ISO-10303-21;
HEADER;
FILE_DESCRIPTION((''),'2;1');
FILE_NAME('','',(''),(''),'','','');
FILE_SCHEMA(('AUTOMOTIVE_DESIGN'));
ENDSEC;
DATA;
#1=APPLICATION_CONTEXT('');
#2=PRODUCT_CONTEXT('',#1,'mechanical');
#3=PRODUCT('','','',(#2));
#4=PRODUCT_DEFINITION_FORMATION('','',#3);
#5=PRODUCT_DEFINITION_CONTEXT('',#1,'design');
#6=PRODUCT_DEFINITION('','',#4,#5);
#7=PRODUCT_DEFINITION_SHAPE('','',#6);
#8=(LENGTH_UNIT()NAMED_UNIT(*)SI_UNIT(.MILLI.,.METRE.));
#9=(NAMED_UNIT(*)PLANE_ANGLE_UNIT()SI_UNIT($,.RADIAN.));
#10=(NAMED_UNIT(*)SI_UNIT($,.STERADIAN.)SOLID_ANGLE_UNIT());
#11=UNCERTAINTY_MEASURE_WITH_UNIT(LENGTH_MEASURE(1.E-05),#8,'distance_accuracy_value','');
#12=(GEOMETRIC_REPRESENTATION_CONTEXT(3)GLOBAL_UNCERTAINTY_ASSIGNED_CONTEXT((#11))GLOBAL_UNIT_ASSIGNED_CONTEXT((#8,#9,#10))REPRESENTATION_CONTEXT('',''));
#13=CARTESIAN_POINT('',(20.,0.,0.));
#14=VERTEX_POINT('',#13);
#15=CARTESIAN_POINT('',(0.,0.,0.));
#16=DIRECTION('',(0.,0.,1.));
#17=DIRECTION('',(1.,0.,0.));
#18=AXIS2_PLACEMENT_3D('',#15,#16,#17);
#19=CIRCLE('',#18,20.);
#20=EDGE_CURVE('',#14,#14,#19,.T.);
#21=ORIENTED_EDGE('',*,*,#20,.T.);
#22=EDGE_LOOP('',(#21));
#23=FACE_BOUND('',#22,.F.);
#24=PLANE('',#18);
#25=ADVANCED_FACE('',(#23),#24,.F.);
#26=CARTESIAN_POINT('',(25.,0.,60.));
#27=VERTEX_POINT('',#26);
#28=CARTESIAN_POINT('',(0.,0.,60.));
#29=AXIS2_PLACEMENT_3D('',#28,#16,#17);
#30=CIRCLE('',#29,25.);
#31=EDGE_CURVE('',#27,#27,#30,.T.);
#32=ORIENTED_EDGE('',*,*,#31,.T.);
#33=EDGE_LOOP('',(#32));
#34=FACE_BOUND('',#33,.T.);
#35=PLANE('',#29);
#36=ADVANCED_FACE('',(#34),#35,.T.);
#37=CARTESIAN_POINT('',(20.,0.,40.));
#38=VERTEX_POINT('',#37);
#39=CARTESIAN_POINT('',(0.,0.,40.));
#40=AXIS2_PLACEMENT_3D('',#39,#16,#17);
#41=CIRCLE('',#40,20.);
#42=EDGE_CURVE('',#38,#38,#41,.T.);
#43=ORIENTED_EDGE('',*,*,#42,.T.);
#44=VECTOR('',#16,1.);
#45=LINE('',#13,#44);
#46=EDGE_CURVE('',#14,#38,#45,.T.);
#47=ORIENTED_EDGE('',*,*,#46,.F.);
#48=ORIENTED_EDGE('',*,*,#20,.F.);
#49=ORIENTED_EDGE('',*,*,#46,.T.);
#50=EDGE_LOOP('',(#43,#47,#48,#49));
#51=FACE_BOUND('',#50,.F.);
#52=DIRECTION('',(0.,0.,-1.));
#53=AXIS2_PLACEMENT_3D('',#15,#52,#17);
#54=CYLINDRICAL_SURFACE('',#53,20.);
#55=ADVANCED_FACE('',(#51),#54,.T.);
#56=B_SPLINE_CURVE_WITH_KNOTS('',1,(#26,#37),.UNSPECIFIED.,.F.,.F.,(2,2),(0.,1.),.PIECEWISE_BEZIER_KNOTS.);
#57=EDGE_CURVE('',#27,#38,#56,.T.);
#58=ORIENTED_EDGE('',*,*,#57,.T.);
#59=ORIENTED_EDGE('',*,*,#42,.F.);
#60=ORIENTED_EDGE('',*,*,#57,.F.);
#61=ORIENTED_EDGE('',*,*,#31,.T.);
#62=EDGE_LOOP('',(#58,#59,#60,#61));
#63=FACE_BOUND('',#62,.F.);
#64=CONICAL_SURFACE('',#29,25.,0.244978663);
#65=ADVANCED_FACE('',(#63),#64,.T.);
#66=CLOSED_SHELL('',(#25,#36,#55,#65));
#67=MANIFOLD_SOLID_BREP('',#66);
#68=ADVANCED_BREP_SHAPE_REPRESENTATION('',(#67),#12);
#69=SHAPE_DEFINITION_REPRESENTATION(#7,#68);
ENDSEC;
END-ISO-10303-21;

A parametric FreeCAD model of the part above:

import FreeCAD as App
import Part
import Sketcher

V = App.Vector
Q = App.Units.Quantity

doc = App.newDocument("Part")
params = doc.addObject("Spreadsheet::Sheet", "Params")
for row, (alias, value) in enumerate([
    ("sketch1_diameter", "40 mm"),
    ("pad1_length", "40 mm"),
    ("sketch2_diameter", "50 mm"),
    ("sketch3_diameter", "40 mm"),
], start=1):
    params.set(f"A{row}", alias)
    params.set(f"B{row}", "=" + value)
    params.setAlias(f"B{row}", alias)

body = doc.addObject("PartDesign::Body", "Body")

# Sketch on XY plane
sketch1 = doc.addObject("Sketcher::SketchObject", "Sketch")
body.addObject(sketch1)
sketch1.AttachmentSupport = (doc.XY_Plane, [""])
sketch1.MapMode = "FlatFace"
sketch1.addGeometry(Part.Circle(V(0, 0, 0), V(0, 0, 1), 20), False)
sketch1.addConstraint([
    Sketcher.Constraint("Coincident", 0, 3, -1, 1),
    Sketcher.Constraint("Diameter", 0, Q("40 mm")),
])
sketch1.setExpression("Constraints[1]", "Params.sketch1_diameter")
pad1 = doc.addObject("PartDesign::Pad", "Pad")
body.addObject(pad1)
pad1.Profile = sketch1
pad1.setExpression("Length", "Params.pad1_length")

# Sketch on XY plane
sketch2 = doc.addObject("Sketcher::SketchObject", "Sketch001")
body.addObject(sketch2)
sketch2.AttachmentSupport = (doc.XY_Plane, [""])
sketch2.MapMode = "FlatFace"
sketch2.AttachmentOffset = App.Placement(V(0, 0, 60), App.Rotation())
sketch2.addGeometry(Part.Circle(V(0, 0, 0), V(0, 0, 1), 25), False)
sketch2.addConstraint([
    Sketcher.Constraint("Coincident", 0, 3, -1, 1),
    Sketcher.Constraint("Diameter", 0, Q("50 mm")),
])
sketch2.setExpression("Constraints[1]", "Params.sketch2_diameter")

# Sketch on XY plane
sketch3 = doc.addObject("Sketcher::SketchObject", "Sketch002")
body.addObject(sketch3)
sketch3.AttachmentSupport = (doc.XY_Plane, [""])
sketch3.MapMode = "FlatFace"
sketch3.AttachmentOffset = App.Placement(V(0, 0, 40), App.Rotation())
sketch3.addGeometry(Part.Circle(V(0, 0, 0), V(0, 0, 1), 20), False)
sketch3.addConstraint([
    Sketcher.Constraint("Coincident", 0, 3, -1, 1),
    Sketcher.Constraint("Diameter", 0, Q("40 mm")),
])
sketch3.setExpression("Constraints[1]", "Params.sketch3_diameter")

additiveloft = doc.addObject("PartDesign::AdditiveLoft", "AdditiveLoft")
body.addObject(additiveloft)
additiveloft.Profile = sketch2
additiveloft.Sections = [sketch3]

doc.recompute()
